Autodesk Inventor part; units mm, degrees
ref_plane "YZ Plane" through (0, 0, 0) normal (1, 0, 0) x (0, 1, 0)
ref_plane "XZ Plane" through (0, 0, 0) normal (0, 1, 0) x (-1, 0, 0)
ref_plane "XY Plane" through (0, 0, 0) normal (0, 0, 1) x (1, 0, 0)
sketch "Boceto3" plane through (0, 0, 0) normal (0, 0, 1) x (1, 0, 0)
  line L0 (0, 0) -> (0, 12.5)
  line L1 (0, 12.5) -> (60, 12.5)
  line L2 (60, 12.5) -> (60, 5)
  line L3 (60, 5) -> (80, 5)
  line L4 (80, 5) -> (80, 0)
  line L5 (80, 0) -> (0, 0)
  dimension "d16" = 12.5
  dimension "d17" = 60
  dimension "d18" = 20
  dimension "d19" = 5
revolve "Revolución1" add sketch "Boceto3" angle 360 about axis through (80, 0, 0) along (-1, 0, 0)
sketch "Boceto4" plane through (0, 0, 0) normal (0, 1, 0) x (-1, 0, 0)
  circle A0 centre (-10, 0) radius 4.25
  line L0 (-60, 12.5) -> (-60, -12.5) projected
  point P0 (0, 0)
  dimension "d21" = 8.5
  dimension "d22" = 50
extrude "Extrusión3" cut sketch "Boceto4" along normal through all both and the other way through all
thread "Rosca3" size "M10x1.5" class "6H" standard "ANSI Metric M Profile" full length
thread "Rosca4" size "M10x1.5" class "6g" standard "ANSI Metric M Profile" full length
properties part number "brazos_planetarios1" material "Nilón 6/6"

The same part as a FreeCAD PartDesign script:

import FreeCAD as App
import Part
import Sketcher
from FreeCAD import Vector


def add_polygon(sketch, points):
    """Adds a closed chain of lines whose ends are joined by coincident constraints."""
    first, n = sketch.GeometryCount, len(points)
    for a, b in zip(points, points[1:] + points[:1]):
        sketch.addGeometry(Part.LineSegment(App.Vector(*a, 0), App.Vector(*b, 0)), False)
    for i in range(n):
        sketch.addConstraint(Sketcher.Constraint("Coincident", first + i, 2, first + (i + 1) % n, 1))

doc = App.newDocument("Part")
params = doc.addObject("Spreadsheet::Sheet", "Params")
for row, (alias, value) in enumerate([
    ("sketch1_width", "20 mm"),
    ("sketch1_width2", "60 mm"),
    ("sketch1_height", "5 mm"),
    ("sketch1_height2", "12.5 mm"),
    ("revolution_angle", "360 deg"),
    ("sketch2_diameter", "8.5 mm"),
], start=1):
    params.set(f"A{row}", alias)
    params.set(f"B{row}", "=" + value)
    params.setAlias(f"B{row}", alias)

body = doc.addObject("PartDesign::Body", "Body")

sketch1 = body.newObject("Sketcher::SketchObject", "Sketch")
sketch1.AttachmentSupport = (doc.getObject("XY_Plane"), [""])
sketch1.MapMode = "FlatFace"
add_polygon(sketch1, [(0, 12.5), (0, 0), (80, 0), (80, 5), (60, 5), (60, 12.5)])
sketch1.addConstraint(Sketcher.Constraint("Vertical", 0))
sketch1.addConstraint(Sketcher.Constraint("Horizontal", 1))
sketch1.addConstraint(Sketcher.Constraint("Vertical", 2))
sketch1.addConstraint(Sketcher.Constraint("Horizontal", 3))
sketch1.addConstraint(Sketcher.Constraint("Vertical", 4))
sketch1.addConstraint(Sketcher.Constraint("Horizontal", 5))
sketch1.addConstraint(Sketcher.Constraint("Coincident", 0, 2, -1, 1))
sketch1.addConstraint(Sketcher.Constraint("DistanceX", 3, 2, 3, 1, 20.0))
sketch1.addConstraint(Sketcher.Constraint("DistanceX", 5, 2, 5, 1, 60.0))
sketch1.addConstraint(Sketcher.Constraint("DistanceY", 2, 1, 2, 2, 5.0))
sketch1.addConstraint(Sketcher.Constraint("DistanceY", 0, 2, 0, 1, 12.5))
sketch1.setExpression("Constraints[13]", "Params.sketch1_width")
sketch1.setExpression("Constraints[14]", "Params.sketch1_width2")
sketch1.setExpression("Constraints[15]", "Params.sketch1_height")
sketch1.setExpression("Constraints[16]", "Params.sketch1_height2")
revolution = body.newObject("PartDesign::Revolution", "Revolution")
revolution.Profile = sketch1
revolution.ReferenceAxis = (sketch1, ["H_Axis"])
revolution.setExpression("Angle", "Params.revolution_angle")

sketch2 = body.newObject("Sketcher::SketchObject", "Sketch001")
sketch2.AttachmentSupport = (doc.getObject("XZ_Plane"), [""])
sketch2.MapMode = "FlatFace"
sketch2.addGeometry(Part.Circle(Vector(10, 0, 0), Vector(0, 0, 1), 4.25), False)
sketch2.addConstraint(Sketcher.Constraint("PointOnObject", 0, 3, -1))
sketch2.addConstraint(Sketcher.Constraint("Diameter", 0, 8.5))
sketch2.addConstraint(Sketcher.Constraint("DistanceX", -1, 1, 0, 3, 10.0))
sketch2.setExpression("Constraints[1]", "Params.sketch2_diameter")
pocket1 = body.newObject("PartDesign::Pocket", "Pocket")
pocket1.Profile = sketch2
pocket1.Type = "ThroughAll"
pocket1.Midplane = True

doc.recompute()
